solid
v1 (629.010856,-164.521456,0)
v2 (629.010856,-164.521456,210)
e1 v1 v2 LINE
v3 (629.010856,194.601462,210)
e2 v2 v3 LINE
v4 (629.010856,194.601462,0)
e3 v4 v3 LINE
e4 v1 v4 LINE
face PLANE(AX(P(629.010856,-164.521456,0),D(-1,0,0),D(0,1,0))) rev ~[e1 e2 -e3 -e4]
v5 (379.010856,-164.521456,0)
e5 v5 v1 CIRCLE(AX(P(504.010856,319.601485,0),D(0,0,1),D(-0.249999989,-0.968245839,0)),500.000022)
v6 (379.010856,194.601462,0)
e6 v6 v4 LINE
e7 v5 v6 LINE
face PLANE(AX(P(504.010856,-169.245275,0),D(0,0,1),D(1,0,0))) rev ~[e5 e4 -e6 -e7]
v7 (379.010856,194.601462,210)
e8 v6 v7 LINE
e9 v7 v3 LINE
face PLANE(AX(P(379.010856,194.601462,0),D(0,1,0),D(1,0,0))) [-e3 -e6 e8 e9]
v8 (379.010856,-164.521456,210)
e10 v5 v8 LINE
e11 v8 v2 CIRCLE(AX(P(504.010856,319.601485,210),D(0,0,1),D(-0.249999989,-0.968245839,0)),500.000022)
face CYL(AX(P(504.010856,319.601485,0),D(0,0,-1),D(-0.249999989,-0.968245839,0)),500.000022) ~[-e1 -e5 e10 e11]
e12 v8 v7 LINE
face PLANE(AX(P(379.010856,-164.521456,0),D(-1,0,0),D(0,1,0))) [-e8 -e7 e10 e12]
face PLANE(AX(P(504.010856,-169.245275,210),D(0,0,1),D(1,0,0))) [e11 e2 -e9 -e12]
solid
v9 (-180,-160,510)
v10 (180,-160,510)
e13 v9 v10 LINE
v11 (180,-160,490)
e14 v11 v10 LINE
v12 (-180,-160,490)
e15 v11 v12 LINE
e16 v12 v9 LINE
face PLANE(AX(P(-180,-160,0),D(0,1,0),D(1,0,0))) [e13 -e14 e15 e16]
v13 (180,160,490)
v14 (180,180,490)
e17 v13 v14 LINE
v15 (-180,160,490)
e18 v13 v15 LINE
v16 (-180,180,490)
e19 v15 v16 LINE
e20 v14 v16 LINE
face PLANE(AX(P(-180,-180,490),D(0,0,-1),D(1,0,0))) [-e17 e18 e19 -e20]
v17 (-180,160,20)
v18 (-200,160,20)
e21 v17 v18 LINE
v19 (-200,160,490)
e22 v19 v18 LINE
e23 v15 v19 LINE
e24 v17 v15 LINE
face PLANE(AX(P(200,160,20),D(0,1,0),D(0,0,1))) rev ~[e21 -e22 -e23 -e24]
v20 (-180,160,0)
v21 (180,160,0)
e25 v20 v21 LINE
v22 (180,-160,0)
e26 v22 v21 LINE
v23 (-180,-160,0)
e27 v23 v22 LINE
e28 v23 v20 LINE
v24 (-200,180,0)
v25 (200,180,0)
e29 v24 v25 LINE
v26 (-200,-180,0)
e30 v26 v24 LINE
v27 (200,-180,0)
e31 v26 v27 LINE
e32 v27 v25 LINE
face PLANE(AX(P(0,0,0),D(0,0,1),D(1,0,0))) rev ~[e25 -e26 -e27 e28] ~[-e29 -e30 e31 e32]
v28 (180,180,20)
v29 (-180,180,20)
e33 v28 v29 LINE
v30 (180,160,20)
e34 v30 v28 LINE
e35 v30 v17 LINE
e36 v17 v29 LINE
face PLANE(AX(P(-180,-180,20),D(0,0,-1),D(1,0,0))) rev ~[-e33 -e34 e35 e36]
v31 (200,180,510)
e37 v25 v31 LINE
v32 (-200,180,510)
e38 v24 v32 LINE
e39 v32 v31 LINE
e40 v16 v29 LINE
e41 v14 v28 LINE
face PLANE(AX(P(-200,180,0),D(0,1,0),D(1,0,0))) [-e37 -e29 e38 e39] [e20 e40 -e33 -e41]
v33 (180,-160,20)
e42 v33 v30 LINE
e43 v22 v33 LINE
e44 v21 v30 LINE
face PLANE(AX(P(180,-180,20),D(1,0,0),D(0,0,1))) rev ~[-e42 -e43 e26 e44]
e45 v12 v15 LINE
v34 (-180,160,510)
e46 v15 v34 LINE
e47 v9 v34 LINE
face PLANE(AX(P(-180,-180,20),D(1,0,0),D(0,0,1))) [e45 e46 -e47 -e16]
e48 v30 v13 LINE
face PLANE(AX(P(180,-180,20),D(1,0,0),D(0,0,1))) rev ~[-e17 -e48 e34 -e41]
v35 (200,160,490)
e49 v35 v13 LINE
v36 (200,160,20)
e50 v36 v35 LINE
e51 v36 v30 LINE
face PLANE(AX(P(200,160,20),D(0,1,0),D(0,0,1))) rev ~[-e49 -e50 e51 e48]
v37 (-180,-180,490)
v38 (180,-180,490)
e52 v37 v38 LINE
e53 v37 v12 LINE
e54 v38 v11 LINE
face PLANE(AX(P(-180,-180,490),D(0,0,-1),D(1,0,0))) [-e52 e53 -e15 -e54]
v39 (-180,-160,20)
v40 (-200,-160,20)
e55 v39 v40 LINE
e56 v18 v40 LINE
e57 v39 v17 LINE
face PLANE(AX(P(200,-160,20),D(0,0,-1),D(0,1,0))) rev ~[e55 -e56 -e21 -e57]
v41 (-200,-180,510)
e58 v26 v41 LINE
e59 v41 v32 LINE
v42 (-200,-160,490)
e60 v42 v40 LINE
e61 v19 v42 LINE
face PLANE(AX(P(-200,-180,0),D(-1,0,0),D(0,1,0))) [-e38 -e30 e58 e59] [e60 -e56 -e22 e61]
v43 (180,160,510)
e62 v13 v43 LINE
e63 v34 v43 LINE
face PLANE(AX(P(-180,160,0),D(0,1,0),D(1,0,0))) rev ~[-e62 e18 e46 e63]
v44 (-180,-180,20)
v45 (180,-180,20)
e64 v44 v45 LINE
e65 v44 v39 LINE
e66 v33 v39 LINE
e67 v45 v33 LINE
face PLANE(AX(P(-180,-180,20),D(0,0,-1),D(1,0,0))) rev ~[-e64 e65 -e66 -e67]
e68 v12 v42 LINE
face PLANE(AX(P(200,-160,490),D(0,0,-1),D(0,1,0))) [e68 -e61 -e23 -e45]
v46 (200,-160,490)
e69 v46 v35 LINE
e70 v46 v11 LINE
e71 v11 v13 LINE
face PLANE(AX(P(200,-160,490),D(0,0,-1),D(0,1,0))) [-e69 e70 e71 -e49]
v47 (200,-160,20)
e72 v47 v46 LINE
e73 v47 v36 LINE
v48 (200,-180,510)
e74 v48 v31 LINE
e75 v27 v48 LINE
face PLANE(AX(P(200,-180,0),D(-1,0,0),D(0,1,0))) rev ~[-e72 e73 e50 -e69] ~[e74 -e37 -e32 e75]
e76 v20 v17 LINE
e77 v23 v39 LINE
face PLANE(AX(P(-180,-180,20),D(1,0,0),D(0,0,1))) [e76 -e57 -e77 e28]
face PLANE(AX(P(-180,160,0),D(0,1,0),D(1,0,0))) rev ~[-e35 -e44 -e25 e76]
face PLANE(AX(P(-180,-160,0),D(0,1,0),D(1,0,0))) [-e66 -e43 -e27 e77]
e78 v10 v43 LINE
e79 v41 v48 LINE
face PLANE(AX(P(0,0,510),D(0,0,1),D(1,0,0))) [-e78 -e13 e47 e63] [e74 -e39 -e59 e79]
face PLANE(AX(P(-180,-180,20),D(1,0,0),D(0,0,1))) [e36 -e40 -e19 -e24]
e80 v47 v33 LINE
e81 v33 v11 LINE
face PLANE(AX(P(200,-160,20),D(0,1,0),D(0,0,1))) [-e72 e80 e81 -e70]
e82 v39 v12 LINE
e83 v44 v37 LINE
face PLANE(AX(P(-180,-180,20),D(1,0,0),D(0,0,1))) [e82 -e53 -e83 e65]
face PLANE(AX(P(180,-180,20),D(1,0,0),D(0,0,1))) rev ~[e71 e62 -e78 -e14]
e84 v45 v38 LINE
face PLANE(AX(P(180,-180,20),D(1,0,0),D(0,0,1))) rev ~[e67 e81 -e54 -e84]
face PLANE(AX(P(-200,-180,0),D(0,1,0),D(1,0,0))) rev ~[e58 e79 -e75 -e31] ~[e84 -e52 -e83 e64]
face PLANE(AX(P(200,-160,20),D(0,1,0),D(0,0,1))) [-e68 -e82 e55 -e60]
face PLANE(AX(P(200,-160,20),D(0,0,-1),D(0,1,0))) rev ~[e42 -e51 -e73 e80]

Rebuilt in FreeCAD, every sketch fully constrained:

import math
import FreeCAD as App
import Part
import Sketcher

V = App.Vector

doc = App.newDocument("Part")
body = doc.addObject("PartDesign::Body", "Body")

sketch1 = body.newObject("Sketcher::SketchObject", "Sketch")
sketch1.AttachmentSupport = (doc.getObject("XY_Plane"), [""])
sketch1.MapMode = "FlatFace"
sketch1.addGeometry(Part.LineSegment(V(-200, 180, 0), V(-200, -180, 0)), False)
sketch1.addGeometry(Part.LineSegment(V(-200, -180, 0), V(200, -180, 0)), False)
sketch1.addGeometry(Part.LineSegment(V(200, -180, 0), V(200, 180, 0)), False)
sketch1.addGeometry(Part.LineSegment(V(200, 180, 0), V(-200, 180, 0)), False)
sketch1.addGeometry(Part.LineSegment(V(180, -160, 0), V(-180, -160, 0)), False)
sketch1.addGeometry(Part.LineSegment(V(-180, -160, 0), V(-180, 160, 0)), False)
sketch1.addGeometry(Part.LineSegment(V(-180, 160, 0), V(180, 160, 0)), False)
sketch1.addGeometry(Part.LineSegment(V(180, 160, 0), V(180, -160, 0)), False)
sketch1.addConstraint(Sketcher.Constraint("Coincident", 0, 2, 1, 1))
sketch1.addConstraint(Sketcher.Constraint("Coincident", 1, 2, 2, 1))
sketch1.addConstraint(Sketcher.Constraint("Coincident", 2, 2, 3, 1))
sketch1.addConstraint(Sketcher.Constraint("Coincident", 3, 2, 0, 1))
sketch1.addConstraint(Sketcher.Constraint("Coincident", 4, 2, 5, 1))
sketch1.addConstraint(Sketcher.Constraint("Coincident", 5, 2, 6, 1))
sketch1.addConstraint(Sketcher.Constraint("Coincident", 6, 2, 7, 1))
sketch1.addConstraint(Sketcher.Constraint("Coincident", 7, 2, 4, 1))
sketch1.addConstraint(Sketcher.Constraint("Vertical", 0))
sketch1.addConstraint(Sketcher.Constraint("Horizontal", 1))
sketch1.addConstraint(Sketcher.Constraint("Vertical", 2))
sketch1.addConstraint(Sketcher.Constraint("Horizontal", 3))
sketch1.addConstraint(Sketcher.Constraint("Horizontal", 4))
sketch1.addConstraint(Sketcher.Constraint("Vertical", 5))
sketch1.addConstraint(Sketcher.Constraint("Horizontal", 6))
sketch1.addConstraint(Sketcher.Constraint("Vertical", 7))
sketch1.addConstraint(Sketcher.Constraint("Symmetric", 0, 2, 2, 2, -1, 1))
sketch1.addConstraint(Sketcher.Constraint("Symmetric", 4, 2, 6, 2, -1, 1))
sketch1.addConstraint(Sketcher.Constraint("Equal", 6, 0))
sketch1.addConstraint(Sketcher.Constraint("DistanceX", 1, 1, 1, 2, 400.0))
sketch1.addConstraint(Sketcher.Constraint("DistanceX", 4, 2, 4, 1, 360.0))
sketch1.addConstraint(Sketcher.Constraint("DistanceY", 5, 1, 5, 2, 320.0))
pad1 = body.newObject("PartDesign::Pad", "Pad")
pad1.Profile = sketch1
pad1.Length = 510

sketch2 = body.newObject("Sketcher::SketchObject", "Sketch001")
sketch2.AttachmentSupport = (doc.getObject("XZ_Plane"), [""])
sketch2.MapMode = "FlatFace"
sketch2.AttachmentOffset = App.Placement(V(0, 0, 180), App.Rotation())
sketch2.addGeometry(Part.LineSegment(V(-180, 490, 0), V(-180, 20, 0)), False)
sketch2.addGeometry(Part.LineSegment(V(-180, 20, 0), V(180, 20, 0)), False)
sketch2.addGeometry(Part.LineSegment(V(180, 20, 0), V(180, 490, 0)), False)
sketch2.addGeometry(Part.LineSegment(V(180, 490, 0), V(-180, 490, 0)), False)
sketch2.addConstraint(Sketcher.Constraint("Coincident", 0, 2, 1, 1))
sketch2.addConstraint(Sketcher.Constraint("Coincident", 1, 2, 2, 1))
sketch2.addConstraint(Sketcher.Constraint("Coincident", 2, 2, 3, 1))
sketch2.addConstraint(Sketcher.Constraint("Coincident", 3, 2, 0, 1))
sketch2.addConstraint(Sketcher.Constraint("Vertical", 0))
sketch2.addConstraint(Sketcher.Constraint("Horizontal", 1))
sketch2.addConstraint(Sketcher.Constraint("Vertical", 2))
sketch2.addConstraint(Sketcher.Constraint("Horizontal", 3))
sketch2.addConstraint(Sketcher.Constraint("DistanceX", 1, 1, 1, 2, 360.0))
sketch2.addConstraint(Sketcher.Constraint("DistanceY", 0, 2, 0, 1, 470.0))
sketch2.addConstraint(Sketcher.Constraint("DistanceX", 0, 2, -1, 1, 180.0))
sketch2.addConstraint(Sketcher.Constraint("DistanceY", -1, 1, 0, 2, 20.0))
pocket1 = body.newObject("PartDesign::Pocket", "Pocket")
pocket1.Profile = sketch2
pocket1.Length = 638.111826

sketch3 = body.newObject("Sketcher::SketchObject", "Sketch002")
sketch3.AttachmentSupport = (doc.getObject("YZ_Plane"), [""])
sketch3.MapMode = "FlatFace"
sketch3.AttachmentOffset = App.Placement(V(0, 0, 200), App.Rotation())
sketch3.addGeometry(Part.LineSegment(V(-160, 490, 0), V(-160, 20, 0)), False)
sketch3.addGeometry(Part.LineSegment(V(-160, 20, 0), V(160, 20, 0)), False)
sketch3.addGeometry(Part.LineSegment(V(160, 20, 0), V(160, 490, 0)), False)
sketch3.addGeometry(Part.LineSegment(V(160, 490, 0), V(-160, 490, 0)), False)
sketch3.addConstraint(Sketcher.Constraint("Coincident", 0, 2, 1, 1))
sketch3.addConstraint(Sketcher.Constraint("Coincident", 1, 2, 2, 1))
sketch3.addConstraint(Sketcher.Constraint("Coincident", 2, 2, 3, 1))
sketch3.addConstraint(Sketcher.Constraint("Coincident", 3, 2, 0, 1))
sketch3.addConstraint(Sketcher.Constraint("Vertical", 0))
sketch3.addConstraint(Sketcher.Constraint("Horizontal", 1))
sketch3.addConstraint(Sketcher.Constraint("Vertical", 2))
sketch3.addConstraint(Sketcher.Constraint("Horizontal", 3))
sketch3.addConstraint(Sketcher.Constraint("DistanceX", 1, 1, 1, 2, 320.0))
sketch3.addConstraint(Sketcher.Constraint("DistanceY", 0, 2, 0, 1, 470.0))
sketch3.addConstraint(Sketcher.Constraint("DistanceX", 0, 2, -1, 1, 160.0))
sketch3.addConstraint(Sketcher.Constraint("DistanceY", -1, 1, 0, 2, 20.0))
pocket2 = body.newObject("PartDesign::Pocket", "Pocket001")
pocket2.Profile = sketch3
pocket2.Length = 520
body2 = doc.addObject("PartDesign::Body", "Body001")

sketch4 = body2.newObject("Sketcher::SketchObject", "Sketch003")
sketch4.AttachmentSupport = (doc.getObject("XY_Plane001"), [""])
sketch4.MapMode = "FlatFace"
sketch4.addGeometry(Part.ArcOfCircle(Part.Circle(V(504, 320, 0), V(0, 0, 1), 500), math.radians(-104), math.radians(-76)), False)
sketch4.addGeometry(Part.LineSegment(V(629, -165, 0), V(629, 195, 0)), False)
sketch4.addGeometry(Part.LineSegment(V(629, 195, 0), V(379, 195, 0)), False)
sketch4.addGeometry(Part.LineSegment(V(379, 195, 0), V(379, -165, 0)), False)
sketch4.addConstraint(Sketcher.Constraint("Coincident", 0, 2, 1, 1))
sketch4.addConstraint(Sketcher.Constraint("Coincident", 1, 2, 2, 1))
sketch4.addConstraint(Sketcher.Constraint("Coincident", 2, 2, 3, 1))
sketch4.addConstraint(Sketcher.Constraint("Coincident", 3, 2, 0, 1))
sketch4.addConstraint(Sketcher.Constraint("Vertical", 1))
sketch4.addConstraint(Sketcher.Constraint("Horizontal", 2))
sketch4.addConstraint(Sketcher.Constraint("Vertical", 3))
sketch4.addConstraint(Sketcher.Constraint("Horizontal", 0, 2, 3, 2))
sketch4.addConstraint(Sketcher.Constraint("DistanceX", 2, 2, 2, 1, 250.0))
sketch4.addConstraint(Sketcher.Constraint("Radius", 0, 500.000022))
sketch4.addConstraint(Sketcher.Constraint("DistanceY", 1, 1, 1, 2, 359.122918))
sketch4.addConstraint(Sketcher.Constraint("DistanceX", -1, 1, 0, 3, 504.010856))
sketch4.addConstraint(Sketcher.Constraint("DistanceY", -1, 1, 0, 3, 319.601485))
pad2 = body2.newObject("PartDesign::Pad", "Pad001")
pad2.Profile = sketch4
pad2.Length = 210

doc.recompute()
